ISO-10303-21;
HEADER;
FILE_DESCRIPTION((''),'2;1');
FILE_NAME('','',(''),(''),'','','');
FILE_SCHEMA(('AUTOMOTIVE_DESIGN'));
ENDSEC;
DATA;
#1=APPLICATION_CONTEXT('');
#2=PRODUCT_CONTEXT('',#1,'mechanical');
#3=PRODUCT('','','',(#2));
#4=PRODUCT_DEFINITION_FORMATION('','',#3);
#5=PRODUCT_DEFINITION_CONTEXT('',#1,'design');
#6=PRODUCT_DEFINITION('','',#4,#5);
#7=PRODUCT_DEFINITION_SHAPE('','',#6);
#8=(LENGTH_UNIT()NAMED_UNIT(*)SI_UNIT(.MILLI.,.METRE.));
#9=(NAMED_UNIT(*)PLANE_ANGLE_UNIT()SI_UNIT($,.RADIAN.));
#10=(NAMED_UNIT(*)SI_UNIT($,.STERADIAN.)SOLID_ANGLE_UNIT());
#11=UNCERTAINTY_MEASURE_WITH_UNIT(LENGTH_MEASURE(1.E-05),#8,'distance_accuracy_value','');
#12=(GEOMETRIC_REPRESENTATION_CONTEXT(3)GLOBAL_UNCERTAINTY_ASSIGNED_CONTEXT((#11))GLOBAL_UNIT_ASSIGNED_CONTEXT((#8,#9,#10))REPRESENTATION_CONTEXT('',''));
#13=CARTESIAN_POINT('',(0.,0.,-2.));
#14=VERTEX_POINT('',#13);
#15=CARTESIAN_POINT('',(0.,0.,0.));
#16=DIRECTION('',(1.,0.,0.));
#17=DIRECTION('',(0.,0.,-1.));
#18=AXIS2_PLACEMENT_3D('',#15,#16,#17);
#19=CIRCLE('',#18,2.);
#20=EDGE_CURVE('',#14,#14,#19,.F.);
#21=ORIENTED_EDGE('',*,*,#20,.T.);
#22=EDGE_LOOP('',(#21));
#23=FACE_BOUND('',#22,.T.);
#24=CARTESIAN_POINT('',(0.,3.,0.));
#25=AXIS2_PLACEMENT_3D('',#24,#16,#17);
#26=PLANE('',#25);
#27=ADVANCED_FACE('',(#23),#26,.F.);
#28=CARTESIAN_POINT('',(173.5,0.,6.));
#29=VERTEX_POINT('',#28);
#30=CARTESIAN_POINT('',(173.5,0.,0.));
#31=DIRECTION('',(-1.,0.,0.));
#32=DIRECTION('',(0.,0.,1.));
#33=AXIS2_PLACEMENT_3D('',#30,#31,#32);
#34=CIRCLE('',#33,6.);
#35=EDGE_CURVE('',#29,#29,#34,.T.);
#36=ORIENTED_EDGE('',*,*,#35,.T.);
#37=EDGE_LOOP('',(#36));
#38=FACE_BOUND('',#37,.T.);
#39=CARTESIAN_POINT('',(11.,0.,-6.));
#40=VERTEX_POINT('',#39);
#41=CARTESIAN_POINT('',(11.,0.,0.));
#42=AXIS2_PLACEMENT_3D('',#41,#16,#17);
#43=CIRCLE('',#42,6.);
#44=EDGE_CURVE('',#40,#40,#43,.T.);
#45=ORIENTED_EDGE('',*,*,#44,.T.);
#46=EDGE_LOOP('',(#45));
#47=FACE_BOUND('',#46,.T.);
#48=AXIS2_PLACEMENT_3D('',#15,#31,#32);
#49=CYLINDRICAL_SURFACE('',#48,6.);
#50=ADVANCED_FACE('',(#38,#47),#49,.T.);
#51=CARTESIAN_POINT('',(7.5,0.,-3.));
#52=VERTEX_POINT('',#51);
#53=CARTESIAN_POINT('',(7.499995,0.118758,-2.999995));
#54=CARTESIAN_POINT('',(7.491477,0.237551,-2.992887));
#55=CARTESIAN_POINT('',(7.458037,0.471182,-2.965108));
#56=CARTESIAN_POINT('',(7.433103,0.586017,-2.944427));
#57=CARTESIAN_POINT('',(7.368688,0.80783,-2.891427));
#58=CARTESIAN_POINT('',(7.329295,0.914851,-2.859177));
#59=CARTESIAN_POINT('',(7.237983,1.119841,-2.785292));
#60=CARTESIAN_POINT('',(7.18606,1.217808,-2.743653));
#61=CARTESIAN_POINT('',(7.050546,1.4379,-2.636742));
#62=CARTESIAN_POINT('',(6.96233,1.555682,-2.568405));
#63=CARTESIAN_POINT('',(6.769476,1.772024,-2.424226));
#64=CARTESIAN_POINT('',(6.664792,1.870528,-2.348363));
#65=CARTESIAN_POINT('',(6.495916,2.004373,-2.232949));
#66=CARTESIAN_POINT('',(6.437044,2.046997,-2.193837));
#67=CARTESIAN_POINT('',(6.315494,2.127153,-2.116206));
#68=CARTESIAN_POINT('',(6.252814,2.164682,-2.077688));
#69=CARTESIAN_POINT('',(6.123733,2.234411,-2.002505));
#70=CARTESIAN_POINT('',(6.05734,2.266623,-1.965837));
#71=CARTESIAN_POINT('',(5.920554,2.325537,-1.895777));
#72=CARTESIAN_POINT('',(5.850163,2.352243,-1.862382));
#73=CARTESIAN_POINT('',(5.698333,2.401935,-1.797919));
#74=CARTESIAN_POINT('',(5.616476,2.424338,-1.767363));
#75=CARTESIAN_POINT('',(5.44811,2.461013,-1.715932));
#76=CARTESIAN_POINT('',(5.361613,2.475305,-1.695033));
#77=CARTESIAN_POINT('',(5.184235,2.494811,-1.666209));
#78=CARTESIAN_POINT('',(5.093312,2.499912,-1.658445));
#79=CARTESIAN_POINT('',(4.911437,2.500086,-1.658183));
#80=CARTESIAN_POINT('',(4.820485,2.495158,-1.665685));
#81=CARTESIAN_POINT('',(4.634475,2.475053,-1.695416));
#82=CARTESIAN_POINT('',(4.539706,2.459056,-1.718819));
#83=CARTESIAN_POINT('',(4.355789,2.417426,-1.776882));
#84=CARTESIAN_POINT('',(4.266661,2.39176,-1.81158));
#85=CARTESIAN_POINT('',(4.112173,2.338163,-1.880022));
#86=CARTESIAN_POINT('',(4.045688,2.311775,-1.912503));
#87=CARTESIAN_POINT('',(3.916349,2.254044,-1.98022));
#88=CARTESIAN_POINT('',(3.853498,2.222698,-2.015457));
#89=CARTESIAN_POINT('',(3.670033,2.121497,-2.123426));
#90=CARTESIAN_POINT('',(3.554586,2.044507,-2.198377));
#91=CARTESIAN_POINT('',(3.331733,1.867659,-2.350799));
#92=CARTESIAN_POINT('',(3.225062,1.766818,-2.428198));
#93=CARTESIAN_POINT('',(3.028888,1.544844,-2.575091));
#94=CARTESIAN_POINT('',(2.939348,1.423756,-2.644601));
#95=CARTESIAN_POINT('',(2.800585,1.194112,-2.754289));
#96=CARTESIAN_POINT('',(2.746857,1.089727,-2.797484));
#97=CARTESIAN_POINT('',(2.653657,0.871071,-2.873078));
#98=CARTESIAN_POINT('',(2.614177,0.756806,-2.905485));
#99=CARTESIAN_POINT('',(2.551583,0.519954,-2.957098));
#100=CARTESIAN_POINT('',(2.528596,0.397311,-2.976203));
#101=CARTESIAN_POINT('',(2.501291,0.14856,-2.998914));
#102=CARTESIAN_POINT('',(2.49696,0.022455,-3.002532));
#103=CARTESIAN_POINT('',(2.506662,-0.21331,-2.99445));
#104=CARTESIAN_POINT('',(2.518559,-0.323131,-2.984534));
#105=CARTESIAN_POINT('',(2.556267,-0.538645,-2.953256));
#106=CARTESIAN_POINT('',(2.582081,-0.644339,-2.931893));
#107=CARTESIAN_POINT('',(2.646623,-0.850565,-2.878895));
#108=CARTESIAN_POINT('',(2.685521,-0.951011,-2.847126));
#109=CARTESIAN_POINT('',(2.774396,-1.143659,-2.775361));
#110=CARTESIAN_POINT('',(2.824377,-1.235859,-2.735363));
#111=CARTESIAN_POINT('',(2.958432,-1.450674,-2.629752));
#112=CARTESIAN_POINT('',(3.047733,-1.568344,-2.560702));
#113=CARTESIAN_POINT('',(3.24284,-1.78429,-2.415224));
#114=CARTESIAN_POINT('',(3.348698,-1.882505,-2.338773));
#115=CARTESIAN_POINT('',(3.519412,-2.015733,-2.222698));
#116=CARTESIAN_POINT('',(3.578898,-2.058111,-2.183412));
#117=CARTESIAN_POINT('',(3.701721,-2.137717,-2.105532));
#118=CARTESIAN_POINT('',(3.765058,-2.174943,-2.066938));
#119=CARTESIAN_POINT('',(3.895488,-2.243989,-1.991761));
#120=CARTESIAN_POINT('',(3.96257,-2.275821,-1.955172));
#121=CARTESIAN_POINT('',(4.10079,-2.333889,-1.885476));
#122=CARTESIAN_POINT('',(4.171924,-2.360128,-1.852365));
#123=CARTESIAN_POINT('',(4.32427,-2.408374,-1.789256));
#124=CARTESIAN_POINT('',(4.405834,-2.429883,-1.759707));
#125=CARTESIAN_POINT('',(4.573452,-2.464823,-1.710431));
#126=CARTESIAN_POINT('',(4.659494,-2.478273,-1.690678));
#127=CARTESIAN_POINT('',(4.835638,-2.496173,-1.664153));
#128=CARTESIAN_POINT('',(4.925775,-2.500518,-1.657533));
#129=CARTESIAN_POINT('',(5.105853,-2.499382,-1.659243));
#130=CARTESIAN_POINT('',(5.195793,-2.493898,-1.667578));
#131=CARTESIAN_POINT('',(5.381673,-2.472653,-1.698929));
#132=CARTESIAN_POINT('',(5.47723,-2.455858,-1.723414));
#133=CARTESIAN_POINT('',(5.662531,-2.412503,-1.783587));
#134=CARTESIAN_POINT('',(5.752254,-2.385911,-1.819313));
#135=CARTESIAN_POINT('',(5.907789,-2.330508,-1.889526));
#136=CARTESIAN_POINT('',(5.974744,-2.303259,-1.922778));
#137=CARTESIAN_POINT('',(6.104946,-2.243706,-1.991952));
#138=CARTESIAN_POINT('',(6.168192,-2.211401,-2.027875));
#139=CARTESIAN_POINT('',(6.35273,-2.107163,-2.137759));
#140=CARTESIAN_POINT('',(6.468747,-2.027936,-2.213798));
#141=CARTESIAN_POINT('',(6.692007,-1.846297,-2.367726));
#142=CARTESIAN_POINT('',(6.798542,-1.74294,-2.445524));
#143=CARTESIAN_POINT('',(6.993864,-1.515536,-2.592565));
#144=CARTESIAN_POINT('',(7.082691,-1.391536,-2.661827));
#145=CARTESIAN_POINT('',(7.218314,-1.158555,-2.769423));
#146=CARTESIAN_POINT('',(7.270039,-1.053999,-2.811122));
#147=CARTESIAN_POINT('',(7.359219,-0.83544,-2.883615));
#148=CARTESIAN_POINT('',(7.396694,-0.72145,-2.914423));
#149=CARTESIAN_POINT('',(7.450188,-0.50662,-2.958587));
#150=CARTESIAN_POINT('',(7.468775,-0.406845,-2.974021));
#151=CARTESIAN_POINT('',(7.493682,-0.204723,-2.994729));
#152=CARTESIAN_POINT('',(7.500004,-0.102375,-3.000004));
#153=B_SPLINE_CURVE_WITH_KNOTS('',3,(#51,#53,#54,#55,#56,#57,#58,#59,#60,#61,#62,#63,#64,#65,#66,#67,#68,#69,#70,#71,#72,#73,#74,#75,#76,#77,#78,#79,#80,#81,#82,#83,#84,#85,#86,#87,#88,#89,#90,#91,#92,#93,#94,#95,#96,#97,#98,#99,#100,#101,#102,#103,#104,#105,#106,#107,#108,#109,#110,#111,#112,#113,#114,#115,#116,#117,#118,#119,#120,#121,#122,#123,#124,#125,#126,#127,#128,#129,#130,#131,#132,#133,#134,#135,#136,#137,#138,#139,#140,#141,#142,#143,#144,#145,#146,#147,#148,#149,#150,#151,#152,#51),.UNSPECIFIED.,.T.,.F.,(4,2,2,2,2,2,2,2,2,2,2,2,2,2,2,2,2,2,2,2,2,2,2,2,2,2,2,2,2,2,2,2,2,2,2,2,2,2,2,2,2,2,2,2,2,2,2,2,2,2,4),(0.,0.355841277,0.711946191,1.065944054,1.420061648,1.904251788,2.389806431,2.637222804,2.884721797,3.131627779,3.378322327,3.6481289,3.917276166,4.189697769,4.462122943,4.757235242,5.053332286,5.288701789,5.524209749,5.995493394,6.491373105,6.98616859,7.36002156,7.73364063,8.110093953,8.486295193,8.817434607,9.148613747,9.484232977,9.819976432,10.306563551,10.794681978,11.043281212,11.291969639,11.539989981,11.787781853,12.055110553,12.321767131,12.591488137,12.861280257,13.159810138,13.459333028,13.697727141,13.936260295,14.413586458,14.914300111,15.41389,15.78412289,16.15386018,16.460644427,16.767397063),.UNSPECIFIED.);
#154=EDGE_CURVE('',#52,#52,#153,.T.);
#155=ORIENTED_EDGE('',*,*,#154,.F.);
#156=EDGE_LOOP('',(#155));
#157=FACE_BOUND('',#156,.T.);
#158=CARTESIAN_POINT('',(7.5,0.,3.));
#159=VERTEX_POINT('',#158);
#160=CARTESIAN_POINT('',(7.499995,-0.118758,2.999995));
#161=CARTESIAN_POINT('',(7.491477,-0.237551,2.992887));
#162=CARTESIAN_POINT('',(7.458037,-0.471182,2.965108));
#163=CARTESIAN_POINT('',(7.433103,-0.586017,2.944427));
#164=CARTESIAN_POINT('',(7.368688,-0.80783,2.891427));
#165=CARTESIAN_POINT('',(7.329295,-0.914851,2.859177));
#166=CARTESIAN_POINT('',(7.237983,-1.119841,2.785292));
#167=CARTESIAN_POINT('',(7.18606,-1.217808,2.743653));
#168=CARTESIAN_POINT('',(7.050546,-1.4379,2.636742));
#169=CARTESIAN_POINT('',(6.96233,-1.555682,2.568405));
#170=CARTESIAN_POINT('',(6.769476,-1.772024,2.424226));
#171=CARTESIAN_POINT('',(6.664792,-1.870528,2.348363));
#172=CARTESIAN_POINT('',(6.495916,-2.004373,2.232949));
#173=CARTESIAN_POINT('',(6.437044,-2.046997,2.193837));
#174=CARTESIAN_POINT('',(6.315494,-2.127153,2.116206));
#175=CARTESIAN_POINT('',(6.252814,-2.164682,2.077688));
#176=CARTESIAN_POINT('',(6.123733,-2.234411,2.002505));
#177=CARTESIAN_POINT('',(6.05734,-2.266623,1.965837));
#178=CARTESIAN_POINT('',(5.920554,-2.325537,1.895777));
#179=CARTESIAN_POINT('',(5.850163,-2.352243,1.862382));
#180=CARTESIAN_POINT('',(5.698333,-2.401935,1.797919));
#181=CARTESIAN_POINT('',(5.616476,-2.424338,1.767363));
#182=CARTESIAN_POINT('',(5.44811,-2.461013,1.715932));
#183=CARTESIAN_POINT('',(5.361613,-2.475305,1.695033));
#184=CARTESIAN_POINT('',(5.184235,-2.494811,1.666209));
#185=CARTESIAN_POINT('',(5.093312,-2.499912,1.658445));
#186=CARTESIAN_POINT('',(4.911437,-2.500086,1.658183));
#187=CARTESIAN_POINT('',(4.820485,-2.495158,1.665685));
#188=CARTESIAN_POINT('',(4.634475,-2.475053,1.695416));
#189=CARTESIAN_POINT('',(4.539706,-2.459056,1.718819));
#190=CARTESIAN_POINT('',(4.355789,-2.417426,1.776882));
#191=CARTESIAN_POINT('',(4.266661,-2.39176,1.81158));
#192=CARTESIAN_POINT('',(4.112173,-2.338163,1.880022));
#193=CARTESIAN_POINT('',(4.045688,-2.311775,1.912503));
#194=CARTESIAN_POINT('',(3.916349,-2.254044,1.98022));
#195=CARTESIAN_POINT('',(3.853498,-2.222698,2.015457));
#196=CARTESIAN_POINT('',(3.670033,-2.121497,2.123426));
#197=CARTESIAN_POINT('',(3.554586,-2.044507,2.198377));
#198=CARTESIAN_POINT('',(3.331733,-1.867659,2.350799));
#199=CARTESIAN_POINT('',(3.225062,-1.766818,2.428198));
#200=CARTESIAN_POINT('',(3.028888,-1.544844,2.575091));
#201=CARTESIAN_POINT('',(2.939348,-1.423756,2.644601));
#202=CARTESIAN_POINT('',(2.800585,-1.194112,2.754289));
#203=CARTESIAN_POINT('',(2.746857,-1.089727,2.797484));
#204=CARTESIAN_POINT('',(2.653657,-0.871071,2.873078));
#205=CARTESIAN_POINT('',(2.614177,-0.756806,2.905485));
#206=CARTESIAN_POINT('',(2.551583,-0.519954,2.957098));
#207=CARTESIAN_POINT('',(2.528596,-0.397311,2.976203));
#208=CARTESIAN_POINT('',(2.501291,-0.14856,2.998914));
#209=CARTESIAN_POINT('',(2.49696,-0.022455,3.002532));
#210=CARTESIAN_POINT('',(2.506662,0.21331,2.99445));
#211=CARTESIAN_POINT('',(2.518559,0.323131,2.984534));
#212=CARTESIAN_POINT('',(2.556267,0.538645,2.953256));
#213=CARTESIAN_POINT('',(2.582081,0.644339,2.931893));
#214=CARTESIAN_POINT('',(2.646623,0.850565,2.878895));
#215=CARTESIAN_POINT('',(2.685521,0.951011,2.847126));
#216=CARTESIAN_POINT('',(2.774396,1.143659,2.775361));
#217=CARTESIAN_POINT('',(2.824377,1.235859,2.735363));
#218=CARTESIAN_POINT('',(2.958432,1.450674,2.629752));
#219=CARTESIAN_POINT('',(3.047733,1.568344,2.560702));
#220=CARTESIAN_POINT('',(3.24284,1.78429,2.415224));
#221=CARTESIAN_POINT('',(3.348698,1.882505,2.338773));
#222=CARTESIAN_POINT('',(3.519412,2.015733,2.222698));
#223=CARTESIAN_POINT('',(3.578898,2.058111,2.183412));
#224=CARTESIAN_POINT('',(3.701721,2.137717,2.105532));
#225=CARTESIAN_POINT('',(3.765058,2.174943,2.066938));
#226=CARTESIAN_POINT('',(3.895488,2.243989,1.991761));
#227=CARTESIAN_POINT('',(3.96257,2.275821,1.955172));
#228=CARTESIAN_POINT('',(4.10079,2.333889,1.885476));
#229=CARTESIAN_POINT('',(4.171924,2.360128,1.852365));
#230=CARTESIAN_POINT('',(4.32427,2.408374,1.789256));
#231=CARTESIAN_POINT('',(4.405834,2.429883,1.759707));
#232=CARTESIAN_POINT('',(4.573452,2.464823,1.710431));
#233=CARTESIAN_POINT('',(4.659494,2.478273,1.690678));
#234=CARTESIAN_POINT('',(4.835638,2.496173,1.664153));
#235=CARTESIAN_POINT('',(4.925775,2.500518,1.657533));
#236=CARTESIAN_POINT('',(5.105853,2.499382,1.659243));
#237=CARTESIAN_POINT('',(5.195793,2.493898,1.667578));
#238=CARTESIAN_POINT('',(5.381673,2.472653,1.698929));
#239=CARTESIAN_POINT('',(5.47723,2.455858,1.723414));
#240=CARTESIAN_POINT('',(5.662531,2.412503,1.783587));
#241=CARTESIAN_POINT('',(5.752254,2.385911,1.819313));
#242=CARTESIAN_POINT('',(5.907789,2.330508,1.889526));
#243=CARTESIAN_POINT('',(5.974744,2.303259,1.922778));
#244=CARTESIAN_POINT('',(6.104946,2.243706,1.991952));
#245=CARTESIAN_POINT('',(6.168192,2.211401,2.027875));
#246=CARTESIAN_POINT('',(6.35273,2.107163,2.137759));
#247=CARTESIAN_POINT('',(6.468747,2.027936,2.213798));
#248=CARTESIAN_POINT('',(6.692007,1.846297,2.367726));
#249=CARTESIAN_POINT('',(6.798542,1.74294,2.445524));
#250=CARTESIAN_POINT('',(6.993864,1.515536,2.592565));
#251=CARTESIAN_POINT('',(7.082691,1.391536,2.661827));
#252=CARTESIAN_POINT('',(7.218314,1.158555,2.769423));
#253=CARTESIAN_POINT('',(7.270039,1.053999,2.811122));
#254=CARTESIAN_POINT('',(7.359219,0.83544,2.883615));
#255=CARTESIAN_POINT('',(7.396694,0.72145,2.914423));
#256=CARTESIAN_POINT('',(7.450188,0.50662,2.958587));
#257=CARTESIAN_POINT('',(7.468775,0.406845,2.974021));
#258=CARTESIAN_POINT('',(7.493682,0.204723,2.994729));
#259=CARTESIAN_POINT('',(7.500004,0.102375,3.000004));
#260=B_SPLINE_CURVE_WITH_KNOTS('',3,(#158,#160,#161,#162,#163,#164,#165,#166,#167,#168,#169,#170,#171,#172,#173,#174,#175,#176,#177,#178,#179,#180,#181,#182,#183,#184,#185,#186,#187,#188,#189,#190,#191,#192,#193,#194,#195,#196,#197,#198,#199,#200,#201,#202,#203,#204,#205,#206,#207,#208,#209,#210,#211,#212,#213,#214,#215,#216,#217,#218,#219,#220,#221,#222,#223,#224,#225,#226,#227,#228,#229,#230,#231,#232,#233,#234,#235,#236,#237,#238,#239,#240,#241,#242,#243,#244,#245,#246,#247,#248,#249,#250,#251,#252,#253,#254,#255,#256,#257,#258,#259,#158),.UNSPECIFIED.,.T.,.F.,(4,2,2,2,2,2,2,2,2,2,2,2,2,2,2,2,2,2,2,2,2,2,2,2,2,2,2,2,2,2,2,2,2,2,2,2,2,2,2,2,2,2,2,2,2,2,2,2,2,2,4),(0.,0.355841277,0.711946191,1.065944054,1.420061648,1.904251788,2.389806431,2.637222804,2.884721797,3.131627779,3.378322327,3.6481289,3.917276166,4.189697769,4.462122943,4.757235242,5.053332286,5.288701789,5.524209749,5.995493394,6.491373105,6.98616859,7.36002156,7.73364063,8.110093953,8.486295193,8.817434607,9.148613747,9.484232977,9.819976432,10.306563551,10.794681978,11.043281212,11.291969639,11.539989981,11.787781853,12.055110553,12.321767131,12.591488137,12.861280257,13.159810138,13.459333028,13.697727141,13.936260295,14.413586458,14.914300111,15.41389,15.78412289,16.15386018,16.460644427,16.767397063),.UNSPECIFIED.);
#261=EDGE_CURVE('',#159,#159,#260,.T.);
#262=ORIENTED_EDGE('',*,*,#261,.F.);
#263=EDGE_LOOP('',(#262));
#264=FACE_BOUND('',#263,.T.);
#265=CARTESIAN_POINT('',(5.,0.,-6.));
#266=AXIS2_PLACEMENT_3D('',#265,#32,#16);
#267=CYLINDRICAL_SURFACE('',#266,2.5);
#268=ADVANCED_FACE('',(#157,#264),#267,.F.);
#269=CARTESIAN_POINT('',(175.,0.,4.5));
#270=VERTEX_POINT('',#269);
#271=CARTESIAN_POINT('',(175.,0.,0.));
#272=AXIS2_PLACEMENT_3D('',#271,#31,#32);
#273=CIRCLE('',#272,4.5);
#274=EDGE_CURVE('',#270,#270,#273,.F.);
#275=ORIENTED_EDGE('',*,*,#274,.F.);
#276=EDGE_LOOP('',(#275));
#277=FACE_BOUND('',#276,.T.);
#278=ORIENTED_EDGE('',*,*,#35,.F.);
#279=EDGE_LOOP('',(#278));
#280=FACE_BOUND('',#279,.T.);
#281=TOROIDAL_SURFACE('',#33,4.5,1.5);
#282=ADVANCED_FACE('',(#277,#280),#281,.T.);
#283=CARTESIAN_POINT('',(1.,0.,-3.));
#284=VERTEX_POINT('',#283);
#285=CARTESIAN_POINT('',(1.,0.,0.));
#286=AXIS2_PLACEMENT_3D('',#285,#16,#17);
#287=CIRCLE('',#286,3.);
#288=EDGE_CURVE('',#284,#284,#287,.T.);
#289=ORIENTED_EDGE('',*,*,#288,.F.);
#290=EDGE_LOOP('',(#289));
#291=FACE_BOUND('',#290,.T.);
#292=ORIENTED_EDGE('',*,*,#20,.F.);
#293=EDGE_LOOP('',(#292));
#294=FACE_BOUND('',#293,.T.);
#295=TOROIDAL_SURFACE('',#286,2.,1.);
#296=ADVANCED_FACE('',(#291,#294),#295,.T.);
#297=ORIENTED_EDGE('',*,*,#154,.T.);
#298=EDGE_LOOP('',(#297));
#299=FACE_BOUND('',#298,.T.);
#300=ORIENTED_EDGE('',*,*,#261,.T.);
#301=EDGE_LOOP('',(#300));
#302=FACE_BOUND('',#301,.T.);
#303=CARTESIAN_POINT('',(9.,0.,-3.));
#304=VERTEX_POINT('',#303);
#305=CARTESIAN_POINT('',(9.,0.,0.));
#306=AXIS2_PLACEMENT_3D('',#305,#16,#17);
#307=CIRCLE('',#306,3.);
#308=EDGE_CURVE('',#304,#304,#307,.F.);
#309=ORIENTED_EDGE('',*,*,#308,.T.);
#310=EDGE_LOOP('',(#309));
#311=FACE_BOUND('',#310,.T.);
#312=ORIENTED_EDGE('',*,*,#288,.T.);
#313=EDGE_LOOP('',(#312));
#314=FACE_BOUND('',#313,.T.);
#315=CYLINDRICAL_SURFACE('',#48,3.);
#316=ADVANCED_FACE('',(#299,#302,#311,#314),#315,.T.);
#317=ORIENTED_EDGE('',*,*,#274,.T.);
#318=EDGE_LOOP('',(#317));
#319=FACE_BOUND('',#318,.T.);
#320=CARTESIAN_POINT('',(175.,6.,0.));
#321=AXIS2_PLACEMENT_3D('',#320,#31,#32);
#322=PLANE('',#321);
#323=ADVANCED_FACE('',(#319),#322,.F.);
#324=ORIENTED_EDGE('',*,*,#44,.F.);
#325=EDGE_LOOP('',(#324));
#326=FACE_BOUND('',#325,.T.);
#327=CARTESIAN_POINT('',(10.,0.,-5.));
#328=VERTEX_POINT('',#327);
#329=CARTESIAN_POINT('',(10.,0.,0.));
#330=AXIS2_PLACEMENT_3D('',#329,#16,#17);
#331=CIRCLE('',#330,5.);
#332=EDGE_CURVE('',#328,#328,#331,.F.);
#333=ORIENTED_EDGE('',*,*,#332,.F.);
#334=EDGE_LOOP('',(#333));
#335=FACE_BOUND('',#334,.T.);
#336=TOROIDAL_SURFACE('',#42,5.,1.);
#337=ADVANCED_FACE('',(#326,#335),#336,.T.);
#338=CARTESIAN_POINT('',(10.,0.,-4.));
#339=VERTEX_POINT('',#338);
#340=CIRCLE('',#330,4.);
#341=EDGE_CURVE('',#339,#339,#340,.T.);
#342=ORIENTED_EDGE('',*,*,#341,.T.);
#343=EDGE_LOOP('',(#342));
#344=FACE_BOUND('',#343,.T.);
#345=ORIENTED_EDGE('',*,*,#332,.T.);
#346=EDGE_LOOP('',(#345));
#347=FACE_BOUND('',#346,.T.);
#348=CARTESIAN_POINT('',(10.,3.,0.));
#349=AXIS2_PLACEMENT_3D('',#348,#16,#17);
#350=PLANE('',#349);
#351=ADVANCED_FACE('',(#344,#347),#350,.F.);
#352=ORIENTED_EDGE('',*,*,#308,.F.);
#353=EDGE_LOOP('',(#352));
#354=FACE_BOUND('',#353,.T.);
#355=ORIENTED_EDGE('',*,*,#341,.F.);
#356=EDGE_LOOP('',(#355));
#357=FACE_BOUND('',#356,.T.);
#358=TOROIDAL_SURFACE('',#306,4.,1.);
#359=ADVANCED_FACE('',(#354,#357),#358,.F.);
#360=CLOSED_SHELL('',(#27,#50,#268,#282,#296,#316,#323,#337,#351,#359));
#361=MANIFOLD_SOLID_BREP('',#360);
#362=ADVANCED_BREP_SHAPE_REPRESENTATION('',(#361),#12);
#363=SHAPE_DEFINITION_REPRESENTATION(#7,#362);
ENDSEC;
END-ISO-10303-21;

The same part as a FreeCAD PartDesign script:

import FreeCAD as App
import Part
import Sketcher
from FreeCAD import Vector


def edges_at(feature, points):
    """Names of the edges that pass closest to the given points."""
    edges = feature.Shape.Edges
    near = lambda p: min(range(len(edges)), key=lambda i: edges[i].distToShape(Part.Vertex(*p))[0])
    return sorted({f"Edge{near(p) + 1}" for p in points})

doc = App.newDocument("Part")
params = doc.addObject("Spreadsheet::Sheet", "Params")
for row, (alias, value) in enumerate([
    ("sketch1_width", "10 mm"),
    ("sketch1_width2", "175 mm"),
    ("sketch1_height", "3 mm"),
    ("revolution_angle", "360 deg"),
    ("sketch2_diameter", "5 mm"),
    ("fillet_radius", "1 mm"),
    ("fillet2_radius", "1 mm"),
    ("fillet3_radius", "1.5 mm"),
], start=1):
    params.set(f"A{row}", alias)
    params.set(f"B{row}", "=" + value)
    params.setAlias(f"B{row}", alias)

body = doc.addObject("PartDesign::Body", "Body")

# Sketch on XY plane
sketch1 = body.newObject("Sketcher::SketchObject", "Sketch")
sketch1.AttachmentSupport = (doc.getObject("XY_Plane"), [""])
sketch1.MapMode = "FlatFace"
sketch1.addGeometry([
    Part.LineSegment(Vector(10, 3, 0), Vector(0, 3, 0)),  # 0
    Part.LineSegment(Vector(0, 3, 0), Vector(0, 0, 0)),  # 1
    Part.LineSegment(Vector(0, 0, 0), Vector(175, 0, 0)),  # 2
    Part.LineSegment(Vector(175, 0, 0), Vector(175, 6, 0)),  # 3
    Part.LineSegment(Vector(175, 6, 0), Vector(10, 6, 0)),  # 4
    Part.LineSegment(Vector(10, 6, 0), Vector(10, 3, 0)),  # 5
], False)
sketch1.addConstraint([
    Sketcher.Constraint("Coincident", 0, 2, 1, 1),
    Sketcher.Constraint("Coincident", 1, 2, 2, 1),
    Sketcher.Constraint("Coincident", 2, 2, 3, 1),
    Sketcher.Constraint("Coincident", 3, 2, 4, 1),
    Sketcher.Constraint("Coincident", 4, 2, 5, 1),
    Sketcher.Constraint("Coincident", 5, 2, 0, 1),
    Sketcher.Constraint("Horizontal", 0),
    Sketcher.Constraint("Vertical", 1),
    Sketcher.Constraint("Horizontal", 2),
    Sketcher.Constraint("Vertical", 3),
    Sketcher.Constraint("Horizontal", 4),
    Sketcher.Constraint("Vertical", 5),
    Sketcher.Constraint("Coincident", 1, 2, -1, 1),
    Sketcher.Constraint("Equal", 1, 5),
    Sketcher.Constraint("DistanceX", 0, 2, 0, 1, 10.0),
    Sketcher.Constraint("DistanceX", 2, 1, 2, 2, 175.0),
    Sketcher.Constraint("DistanceY", 1, 2, 1, 1, 3.0),
])
sketch1.setExpression("Constraints[14]", "Params.sketch1_width")
sketch1.setExpression("Constraints[15]", "Params.sketch1_width2")
sketch1.setExpression("Constraints[16]", "Params.sketch1_height")
revolution = body.newObject("PartDesign::Revolution", "Revolution")
revolution.Profile = sketch1
revolution.ReferenceAxis = (sketch1, ["H_Axis"])
revolution.setExpression("Angle", "Params.revolution_angle")

# Sketch on XY plane
sketch2 = body.newObject("Sketcher::SketchObject", "Sketch001")
sketch2.AttachmentSupport = (doc.getObject("XY_Plane"), [""])
sketch2.MapMode = "FlatFace"
sketch2.addGeometry(Part.Circle(Vector(5, 0, 0), Vector(0, 0, 1), 2.5), False)
sketch2.addConstraint([
    Sketcher.Constraint("PointOnObject", 0, 3, -1),
    Sketcher.Constraint("Diameter", 0, 5.0),
    Sketcher.Constraint("DistanceX", -1, 1, 0, 3, 5.0),
])
sketch2.setExpression("Constraints[1]", "Params.sketch2_diameter")
pocket1 = body.newObject("PartDesign::Pocket", "Pocket")
pocket1.Profile = sketch2
pocket1.Type = "ThroughAll"
pocket1.Midplane = True
doc.recompute()

fillet = body.newObject("PartDesign::Fillet", "Fillet")
fillet.Base = (pocket1, edges_at(pocket1, [(0, -3, 0)]))
fillet.setExpression("Radius", "Params.fillet_radius")
doc.recompute()

fillet2 = body.newObject("PartDesign::Fillet", "Fillet001")
fillet2.Base = (fillet, edges_at(fillet, [(10, -6, 0), (10, -3, 0)]))
fillet2.setExpression("Radius", "Params.fillet2_radius")
doc.recompute()

fillet3 = body.newObject("PartDesign::Fillet", "Fillet002")
fillet3.Base = (fillet2, edges_at(fillet2, [(175, -6, 0)]))
fillet3.setExpression("Radius", "Params.fillet3_radius")

doc.recompute()
